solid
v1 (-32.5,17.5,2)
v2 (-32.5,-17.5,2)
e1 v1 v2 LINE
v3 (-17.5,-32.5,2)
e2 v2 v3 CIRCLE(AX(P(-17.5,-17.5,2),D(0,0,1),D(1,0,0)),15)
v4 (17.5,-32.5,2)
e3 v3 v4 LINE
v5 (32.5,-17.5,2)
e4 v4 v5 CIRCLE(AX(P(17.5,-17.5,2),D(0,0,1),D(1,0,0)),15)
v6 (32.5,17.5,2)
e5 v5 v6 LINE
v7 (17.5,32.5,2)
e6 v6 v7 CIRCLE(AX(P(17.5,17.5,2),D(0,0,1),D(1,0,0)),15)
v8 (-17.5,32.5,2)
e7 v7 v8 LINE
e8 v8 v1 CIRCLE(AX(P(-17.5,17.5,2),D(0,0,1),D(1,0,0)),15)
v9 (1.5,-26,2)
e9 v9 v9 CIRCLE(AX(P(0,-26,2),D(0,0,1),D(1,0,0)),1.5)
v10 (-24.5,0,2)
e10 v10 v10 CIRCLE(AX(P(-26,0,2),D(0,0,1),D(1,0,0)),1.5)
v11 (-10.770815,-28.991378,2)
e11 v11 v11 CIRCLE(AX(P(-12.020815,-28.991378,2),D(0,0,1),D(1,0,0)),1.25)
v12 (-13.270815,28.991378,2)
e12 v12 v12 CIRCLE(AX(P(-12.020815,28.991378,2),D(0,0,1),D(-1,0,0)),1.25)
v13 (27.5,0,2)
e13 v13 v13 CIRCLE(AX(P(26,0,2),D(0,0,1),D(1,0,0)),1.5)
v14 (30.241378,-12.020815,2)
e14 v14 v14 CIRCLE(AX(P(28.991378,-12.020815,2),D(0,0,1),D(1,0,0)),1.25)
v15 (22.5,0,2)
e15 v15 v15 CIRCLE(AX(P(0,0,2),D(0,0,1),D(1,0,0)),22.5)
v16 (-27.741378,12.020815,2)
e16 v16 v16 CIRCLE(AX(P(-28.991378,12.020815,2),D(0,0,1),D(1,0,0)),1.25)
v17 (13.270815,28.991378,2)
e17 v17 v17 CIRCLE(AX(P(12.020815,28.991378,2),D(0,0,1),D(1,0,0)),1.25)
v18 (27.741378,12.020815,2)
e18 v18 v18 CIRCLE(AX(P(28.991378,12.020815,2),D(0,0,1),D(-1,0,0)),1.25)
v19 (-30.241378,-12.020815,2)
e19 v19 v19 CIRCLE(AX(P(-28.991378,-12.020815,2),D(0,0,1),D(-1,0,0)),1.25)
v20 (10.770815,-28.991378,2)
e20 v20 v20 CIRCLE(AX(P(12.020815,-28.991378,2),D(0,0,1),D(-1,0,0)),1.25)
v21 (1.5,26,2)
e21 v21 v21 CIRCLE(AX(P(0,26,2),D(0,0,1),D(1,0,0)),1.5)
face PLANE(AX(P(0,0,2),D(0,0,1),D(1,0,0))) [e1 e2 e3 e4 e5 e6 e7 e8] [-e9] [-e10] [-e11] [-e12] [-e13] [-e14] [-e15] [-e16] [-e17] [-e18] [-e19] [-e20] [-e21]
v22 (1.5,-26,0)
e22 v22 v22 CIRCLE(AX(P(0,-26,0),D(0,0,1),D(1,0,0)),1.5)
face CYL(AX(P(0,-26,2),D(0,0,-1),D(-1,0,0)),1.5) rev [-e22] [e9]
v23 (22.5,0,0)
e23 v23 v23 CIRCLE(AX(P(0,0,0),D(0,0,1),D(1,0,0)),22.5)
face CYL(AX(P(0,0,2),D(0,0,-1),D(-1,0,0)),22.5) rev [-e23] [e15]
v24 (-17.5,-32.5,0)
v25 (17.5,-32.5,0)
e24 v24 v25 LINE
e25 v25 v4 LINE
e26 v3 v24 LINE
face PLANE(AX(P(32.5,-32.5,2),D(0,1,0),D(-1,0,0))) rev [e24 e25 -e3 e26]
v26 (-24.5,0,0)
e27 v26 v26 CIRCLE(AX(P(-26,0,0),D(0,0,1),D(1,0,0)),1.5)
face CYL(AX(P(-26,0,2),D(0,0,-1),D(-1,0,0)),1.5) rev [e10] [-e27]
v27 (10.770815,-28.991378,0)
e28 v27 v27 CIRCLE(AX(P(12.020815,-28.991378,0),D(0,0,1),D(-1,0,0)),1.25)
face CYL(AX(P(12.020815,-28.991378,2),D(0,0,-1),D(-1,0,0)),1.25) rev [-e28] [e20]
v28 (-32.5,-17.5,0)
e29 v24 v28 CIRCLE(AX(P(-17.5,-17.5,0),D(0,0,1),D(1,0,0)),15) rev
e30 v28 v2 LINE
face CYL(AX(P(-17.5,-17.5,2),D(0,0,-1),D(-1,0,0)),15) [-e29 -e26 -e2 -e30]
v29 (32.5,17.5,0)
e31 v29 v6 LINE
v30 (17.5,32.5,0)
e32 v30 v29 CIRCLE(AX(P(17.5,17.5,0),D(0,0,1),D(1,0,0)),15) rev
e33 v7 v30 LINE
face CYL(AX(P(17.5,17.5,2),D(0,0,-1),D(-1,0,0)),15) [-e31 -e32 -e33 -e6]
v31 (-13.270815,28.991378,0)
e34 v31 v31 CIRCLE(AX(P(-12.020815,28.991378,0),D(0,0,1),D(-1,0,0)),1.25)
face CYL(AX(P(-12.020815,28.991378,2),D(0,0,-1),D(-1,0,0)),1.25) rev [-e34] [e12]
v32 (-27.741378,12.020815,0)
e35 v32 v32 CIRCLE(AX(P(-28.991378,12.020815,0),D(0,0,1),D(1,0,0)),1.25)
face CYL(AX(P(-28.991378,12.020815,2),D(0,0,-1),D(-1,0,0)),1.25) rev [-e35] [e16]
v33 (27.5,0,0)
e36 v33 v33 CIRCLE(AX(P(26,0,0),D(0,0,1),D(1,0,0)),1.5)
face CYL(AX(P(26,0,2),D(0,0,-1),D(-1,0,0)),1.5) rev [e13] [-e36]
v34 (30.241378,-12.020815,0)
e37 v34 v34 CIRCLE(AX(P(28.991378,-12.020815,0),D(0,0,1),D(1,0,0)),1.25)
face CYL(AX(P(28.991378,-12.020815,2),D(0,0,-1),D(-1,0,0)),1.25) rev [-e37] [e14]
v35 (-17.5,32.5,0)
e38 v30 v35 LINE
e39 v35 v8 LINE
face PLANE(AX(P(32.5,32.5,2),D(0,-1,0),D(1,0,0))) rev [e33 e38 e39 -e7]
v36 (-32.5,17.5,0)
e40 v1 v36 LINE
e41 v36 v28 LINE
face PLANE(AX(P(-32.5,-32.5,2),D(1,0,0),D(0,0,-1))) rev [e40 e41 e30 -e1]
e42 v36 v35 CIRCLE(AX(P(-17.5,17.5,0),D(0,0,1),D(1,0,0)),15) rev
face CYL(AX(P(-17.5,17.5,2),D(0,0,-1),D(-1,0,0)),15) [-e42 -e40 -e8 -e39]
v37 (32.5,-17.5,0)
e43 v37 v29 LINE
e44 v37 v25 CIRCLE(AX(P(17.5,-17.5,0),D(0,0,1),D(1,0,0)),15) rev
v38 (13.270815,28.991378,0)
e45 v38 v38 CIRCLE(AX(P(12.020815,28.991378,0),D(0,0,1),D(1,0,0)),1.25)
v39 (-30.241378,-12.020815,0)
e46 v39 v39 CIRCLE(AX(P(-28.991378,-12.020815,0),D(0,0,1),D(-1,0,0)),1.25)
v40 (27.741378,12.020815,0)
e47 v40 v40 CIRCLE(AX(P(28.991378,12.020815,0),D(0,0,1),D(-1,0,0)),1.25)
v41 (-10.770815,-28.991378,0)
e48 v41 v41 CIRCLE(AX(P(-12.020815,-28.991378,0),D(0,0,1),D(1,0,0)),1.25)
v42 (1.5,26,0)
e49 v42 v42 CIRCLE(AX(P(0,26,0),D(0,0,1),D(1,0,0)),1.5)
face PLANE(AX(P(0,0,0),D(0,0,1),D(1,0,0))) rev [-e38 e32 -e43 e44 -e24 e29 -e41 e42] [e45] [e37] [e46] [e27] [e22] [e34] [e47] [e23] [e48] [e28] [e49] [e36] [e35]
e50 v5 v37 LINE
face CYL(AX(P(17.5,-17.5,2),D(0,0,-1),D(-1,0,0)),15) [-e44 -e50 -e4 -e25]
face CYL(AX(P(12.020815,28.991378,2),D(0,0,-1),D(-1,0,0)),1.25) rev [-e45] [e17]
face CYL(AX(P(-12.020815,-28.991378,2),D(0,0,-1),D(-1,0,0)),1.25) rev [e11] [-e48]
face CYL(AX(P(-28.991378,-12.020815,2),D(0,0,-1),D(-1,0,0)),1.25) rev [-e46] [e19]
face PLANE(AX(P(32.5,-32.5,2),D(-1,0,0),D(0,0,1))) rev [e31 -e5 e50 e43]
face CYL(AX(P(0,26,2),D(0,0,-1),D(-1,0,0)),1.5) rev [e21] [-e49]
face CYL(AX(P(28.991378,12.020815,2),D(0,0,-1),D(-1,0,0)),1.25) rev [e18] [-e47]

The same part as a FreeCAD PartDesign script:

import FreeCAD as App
import Part
import Sketcher

V = App.Vector
Q = App.Units.Quantity


def edges_at(feature, points):
    """Names of the edges that pass closest to the given points."""
    edges = feature.Shape.Edges
    near = lambda p: min(range(len(edges)), key=lambda i: edges[i].distToShape(Part.Vertex(*p))[0])
    return sorted({f"Edge{near(p) + 1}" for p in points})

doc = App.newDocument("Part")
body = doc.addObject("PartDesign::Body", "Body")

sketch1 = body.newObject("Sketcher::SketchObject", "Sketch")
sketch1.AttachmentSupport = (doc.getObject("XY_Plane"), [""])
sketch1.MapMode = "FlatFace"
sketch1.addGeometry(Part.LineSegment(V(-32.5, 32.5, 0), V(-32.5, -32.5, 0)), False)
sketch1.addGeometry(Part.LineSegment(V(-32.5, -32.5, 0), V(32.5, -32.5, 0)), False)
sketch1.addGeometry(Part.LineSegment(V(32.5, -32.5, 0), V(32.5, 32.5, 0)), False)
sketch1.addGeometry(Part.LineSegment(V(32.5, 32.5, 0), V(-32.5, 32.5, 0)), False)
sketch1.addGeometry(Part.Circle(V(-12, -29, 0), V(0, 0, 1), 1.2), False)
sketch1.addGeometry(Part.Circle(V(-29, -12, 0), V(0, 0, 1), 1.2), False)
sketch1.addGeometry(Part.Circle(V(0, -26, 0), V(0, 0, 1), 1.5), False)
sketch1.addGeometry(Part.Circle(V(12, -29, 0), V(0, 0, 1), 1.2), False)
sketch1.addGeometry(Part.Circle(V(29, -12, 0), V(0, 0, 1), 1.2), False)
sketch1.addGeometry(Part.Circle(V(-26, 0, 0), V(0, 0, 1), 1.5), False)
sketch1.addGeometry(Part.Circle(V(-29, 12, 0), V(0, 0, 1), 1.2), False)
sketch1.addGeometry(Part.Circle(V(-12, 29, 0), V(0, 0, 1), 1.2), False)
sketch1.addGeometry(Part.Circle(V(0, 0, 0), V(0, 0, 1), 22.5), False)
sketch1.addGeometry(Part.Circle(V(26, 0, 0), V(0, 0, 1), 1.5), False)
sketch1.addGeometry(Part.Circle(V(29, 12, 0), V(0, 0, 1), 1.2), False)
sketch1.addGeometry(Part.Circle(V(0, 26, 0), V(0, 0, 1), 1.5), False)
sketch1.addGeometry(Part.Circle(V(12, 29, 0), V(0, 0, 1), 1.2), False)
sketch1.addConstraint(Sketcher.Constraint("Coincident", 0, 2, 1, 1))
sketch1.addConstraint(Sketcher.Constraint("Coincident", 1, 2, 2, 1))
sketch1.addConstraint(Sketcher.Constraint("Coincident", 2, 2, 3, 1))
sketch1.addConstraint(Sketcher.Constraint("Coincident", 3, 2, 0, 1))
sketch1.addConstraint(Sketcher.Constraint("Vertical", 0))
sketch1.addConstraint(Sketcher.Constraint("Horizontal", 1))
sketch1.addConstraint(Sketcher.Constraint("Vertical", 2))
sketch1.addConstraint(Sketcher.Constraint("Horizontal", 3))
sketch1.addConstraint(Sketcher.Constraint("Coincident", 12, 3, -1, 1))
sketch1.addConstraint(Sketcher.Constraint("Equal", 4, 5))
sketch1.addConstraint(Sketcher.Constraint("Equal", 5, 7))
sketch1.addConstraint(Sketcher.Constraint("Equal", 7, 8))
sketch1.addConstraint(Sketcher.Constraint("Equal", 6, 9))
sketch1.addConstraint(Sketcher.Constraint("Equal", 8, 10))
sketch1.addConstraint(Sketcher.Constraint("Equal", 10, 11))
sketch1.addConstraint(Sketcher.Constraint("Equal", 9, 13))
sketch1.addConstraint(Sketcher.Constraint("Equal", 11, 14))
sketch1.addConstraint(Sketcher.Constraint("Equal", 13, 15))
sketch1.addConstraint(Sketcher.Constraint("Equal", 14, 16))
sketch1.addConstraint(Sketcher.Constraint("Symmetric", 8, 3, 10, 3, -1, 1))
sketch1.addConstraint(Sketcher.Constraint("Symmetric", 7, 3, 11, 3, -1, 1))
sketch1.addConstraint(Sketcher.Constraint("Symmetric", 9, 3, 13, 3, -1, 1))
sketch1.addConstraint(Sketcher.Constraint("Symmetric", 5, 3, 14, 3, -1, 1))
sketch1.addConstraint(Sketcher.Constraint("Symmetric", 6, 3, 15, 3, -1, 1))
sketch1.addConstraint(Sketcher.Constraint("Symmetric", 4, 3, 16, 3, -1, 1))
sketch1.addConstraint(Sketcher.Constraint("Symmetric", 0, 2, 2, 2, -1, 1))
sketch1.addConstraint(Sketcher.Constraint("Symmetric", 4, 3, 7, 3, -2))
sketch1.addConstraint(Sketcher.Constraint("Symmetric", 5, 3, 8, 3, -2))
sketch1.addConstraint(Sketcher.Constraint("PointOnObject", 6, 3, -2))
sketch1.addConstraint(Sketcher.Constraint("PointOnObject", 9, 3, -1))
sketch1.addConstraint(Sketcher.Constraint("Equal", 3, 0))
sketch1.addConstraint(Sketcher.Constraint("Diameter", 6, Q("3 mm")))
sketch1.addConstraint(Sketcher.Constraint("Diameter", 12, Q("45 mm")))
sketch1.addConstraint(Sketcher.Constraint("Diameter", 4, Q("2.5 mm")))
sketch1.addConstraint(Sketcher.Constraint("DistanceX", 1, 1, 1, 2, Q("65 mm")))
sketch1.addConstraint(Sketcher.Constraint("DistanceY", 6, 3, -1, 1, Q("26 mm")))
sketch1.addConstraint(Sketcher.Constraint("DistanceX", 9, 3, -1, 1, Q("26 mm")))
sketch1.addConstraint(Sketcher.Constraint("DistanceY", 4, 3, -1, 1, Q("28.991378 mm")))
sketch1.addConstraint(Sketcher.Constraint("DistanceX", 5, 3, -1, 1, Q("28.991378 mm")))
sketch1.addConstraint(Sketcher.Constraint("DistanceX", 4, 3, 7, 3, Q("24.041631 mm")))
sketch1.addConstraint(Sketcher.Constraint("DistanceY", 5, 3, 10, 3, Q("24.041631 mm")))
pad1 = body.newObject("PartDesign::Pad", "Pad")
pad1.Profile = sketch1
pad1.Length = 2
doc.recompute()

fillet = body.newObject("PartDesign::Fillet", "Fillet")
fillet.Base = (pad1, edges_at(pad1, [
    (-32.5, 32.5, 1),
    (32.5, 32.5, 1),
    (32.5, -32.5, 1),
    (-32.5, -32.5, 1),
]))
fillet.Radius = 15

doc.recompute()
